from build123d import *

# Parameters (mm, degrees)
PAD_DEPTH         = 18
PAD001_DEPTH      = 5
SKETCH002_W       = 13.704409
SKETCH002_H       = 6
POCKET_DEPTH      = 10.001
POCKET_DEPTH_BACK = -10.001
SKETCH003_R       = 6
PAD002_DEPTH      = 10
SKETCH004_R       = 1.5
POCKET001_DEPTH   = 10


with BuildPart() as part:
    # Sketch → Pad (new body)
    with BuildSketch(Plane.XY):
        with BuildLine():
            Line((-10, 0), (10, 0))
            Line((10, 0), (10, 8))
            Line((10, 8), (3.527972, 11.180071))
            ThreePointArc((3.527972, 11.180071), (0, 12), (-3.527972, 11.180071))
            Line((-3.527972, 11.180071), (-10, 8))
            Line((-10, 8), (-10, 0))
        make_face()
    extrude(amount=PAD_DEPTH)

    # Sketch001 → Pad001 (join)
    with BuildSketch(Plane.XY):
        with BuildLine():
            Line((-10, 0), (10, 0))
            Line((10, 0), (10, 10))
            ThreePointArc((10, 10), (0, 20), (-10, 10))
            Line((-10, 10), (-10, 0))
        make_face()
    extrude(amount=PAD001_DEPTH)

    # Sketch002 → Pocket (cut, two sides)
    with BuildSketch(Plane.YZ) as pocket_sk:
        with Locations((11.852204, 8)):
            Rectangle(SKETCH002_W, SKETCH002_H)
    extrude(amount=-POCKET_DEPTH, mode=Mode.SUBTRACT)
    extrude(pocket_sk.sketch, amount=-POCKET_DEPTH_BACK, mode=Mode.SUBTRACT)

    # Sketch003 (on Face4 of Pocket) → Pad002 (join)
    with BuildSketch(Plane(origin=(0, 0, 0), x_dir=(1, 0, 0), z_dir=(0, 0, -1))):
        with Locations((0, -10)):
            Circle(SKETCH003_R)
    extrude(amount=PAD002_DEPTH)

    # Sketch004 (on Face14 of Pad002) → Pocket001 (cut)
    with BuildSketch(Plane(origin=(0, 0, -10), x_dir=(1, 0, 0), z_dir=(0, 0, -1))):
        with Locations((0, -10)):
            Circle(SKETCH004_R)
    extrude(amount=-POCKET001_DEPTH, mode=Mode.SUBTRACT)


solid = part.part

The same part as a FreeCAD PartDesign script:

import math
import FreeCAD as App
import Part
import Sketcher
from FreeCAD import Vector


def add_polygon(sketch, points):
    """Adds a closed chain of lines whose ends are joined by coincident constraints."""
    first, n = sketch.GeometryCount, len(points)
    for a, b in zip(points, points[1:] + points[:1]):
        sketch.addGeometry(Part.LineSegment(App.Vector(*a, 0), App.Vector(*b, 0)), False)
    for i in range(n):
        sketch.addConstraint(Sketcher.Constraint("Coincident", first + i, 2, first + (i + 1) % n, 1))

doc = App.newDocument("Part")
body = doc.addObject("PartDesign::Body", "Body")

# Sketch on XY plane
sketch1 = doc.addObject("Sketcher::SketchObject", "Sketch")
body.addObject(sketch1)
sketch1.AttachmentSupport = (doc.XY_Plane, [""])
sketch1.MapMode = "FlatFace"
sketch1.addGeometry(Part.LineSegment(Vector(-10, 0, 0), Vector(10, 0, 0)), False)
sketch1.addGeometry(Part.LineSegment(Vector(10, 0, 0), Vector(10, 8, 0)), False)
sketch1.addGeometry(Part.LineSegment(Vector(10, 8, 0), Vector(3.527972, 11.180071, 0)), False)
sketch1.addGeometry(Part.ArcOfCircle(Part.Circle(Vector(0, 3.999996, 0), Vector(0, 0, 1), 8.000004), math.radians(63.832534), math.radians(116.167466)), False)
sketch1.addGeometry(Part.LineSegment(Vector(-3.527972, 11.180071, 0), Vector(-10, 8, 0)), False)
sketch1.addGeometry(Part.LineSegment(Vector(-10, 8, 0), Vector(-10, 0, 0)), False)
sketch1.addConstraint(Sketcher.Constraint("Coincident", 0, 2, 1, 1))
sketch1.addConstraint(Sketcher.Constraint("Coincident", 1, 2, 2, 1))
sketch1.addConstraint(Sketcher.Constraint("Tangent", 2, 2, 3, 1))
sketch1.addConstraint(Sketcher.Constraint("Tangent", 3, 2, 4, 1))
sketch1.addConstraint(Sketcher.Constraint("Coincident", 4, 2, 5, 1))
sketch1.addConstraint(Sketcher.Constraint("Coincident", 5, 2, 0, 1))
sketch1.addConstraint(Sketcher.Constraint("Horizontal", 0))
sketch1.addConstraint(Sketcher.Constraint("Vertical", 1))
sketch1.addConstraint(Sketcher.Constraint("Vertical", 5))
sketch1.addConstraint(Sketcher.Constraint("Symmetric", 0, 2, 5, 2, -1, 1))
sketch1.addConstraint(Sketcher.Constraint("Symmetric", 2, 2, 3, 2, -2))
sketch1.addConstraint(Sketcher.Constraint("DistanceX", 0, 1, 0, 2, 20.0))
sketch1.addConstraint(Sketcher.Constraint("DistanceY", 1, 1, 1, 2, 8.0))
sketch1.addConstraint(Sketcher.Constraint("Radius", 3, 8.000004))
sketch1.addConstraint(Sketcher.Constraint("DistanceY", -1, 1, 2, 2, 11.180071))
pad1 = doc.addObject("PartDesign::Pad", "Pad")
body.addObject(pad1)
pad1.Profile = sketch1
pad1.Length = 18

# Sketch on XY plane
sketch2 = doc.addObject("Sketcher::SketchObject", "Sketch001")
body.addObject(sketch2)
sketch2.AttachmentSupport = (doc.XY_Plane, [""])
sketch2.MapMode = "FlatFace"
sketch2.addGeometry(Part.LineSegment(Vector(-10, 0, 0), Vector(10, 0, 0)), False)
sketch2.addGeometry(Part.LineSegment(Vector(10, 0, 0), Vector(10, 10, 0)), False)
sketch2.addGeometry(Part.ArcOfCircle(Part.Circle(Vector(0, 10, 0), Vector(0, 0, 1), 10), math.radians(0), math.radians(180)), False)
sketch2.addGeometry(Part.LineSegment(Vector(-10, 10, 0), Vector(-10, 0, 0)), False)
sketch2.addConstraint(Sketcher.Constraint("Coincident", 0, 2, 1, 1))
sketch2.addConstraint(Sketcher.Constraint("Tangent", 1, 2, 2, 1))
sketch2.addConstraint(Sketcher.Constraint("Tangent", 2, 2, 3, 1))
sketch2.addConstraint(Sketcher.Constraint("Coincident", 3, 2, 0, 1))
sketch2.addConstraint(Sketcher.Constraint("Horizontal", 0))
sketch2.addConstraint(Sketcher.Constraint("Vertical", 1))
sketch2.addConstraint(Sketcher.Constraint("Vertical", 3))
sketch2.addConstraint(Sketcher.Constraint("Symmetric", 0, 2, 3, 2, -1, 1))
sketch2.addConstraint(Sketcher.Constraint("Radius", 2, 10.0))
sketch2.addConstraint(Sketcher.Constraint("DistanceY", 1, 1, 1, 2, 10.0))
pad2 = doc.addObject("PartDesign::Pad", "Pad001")
body.addObject(pad2)
pad2.Profile = sketch2
pad2.Length = 5

# Sketch on YZ plane
sketch3 = doc.addObject("Sketcher::SketchObject", "Sketch002")
body.addObject(sketch3)
sketch3.AttachmentSupport = (doc.YZ_Plane, [""])
sketch3.MapMode = "FlatFace"
add_polygon(sketch3, [(5, 11), (5, 5), (18.704408, 5), (18.704408, 11)])  # lines 0-3
sketch3.addConstraint(Sketcher.Constraint("Vertical", 0))
sketch3.addConstraint(Sketcher.Constraint("Horizontal", 1))
sketch3.addConstraint(Sketcher.Constraint("Vertical", 2))
sketch3.addConstraint(Sketcher.Constraint("Horizontal", 3))
sketch3.addConstraint(Sketcher.Constraint("DistanceY", 0, 2, 0, 1, 6.0))
sketch3.addConstraint(Sketcher.Constraint("DistanceX", -1, 1, 0, 2, 5.0))
sketch3.addConstraint(Sketcher.Constraint("DistanceY", -1, 1, 0, 2, 5.0))
sketch3.addConstraint(Sketcher.Constraint("DistanceX", 1, 1, 1, 2, 13.704409))
pocket1 = doc.addObject("PartDesign::Pocket", "Pocket")
body.addObject(pocket1)
pocket1.Profile = sketch3
pocket1.Type = "ThroughAll"
pocket1.Midplane = True

# Sketch on XY plane
sketch4 = doc.addObject("Sketcher::SketchObject", "Sketch003")
body.addObject(sketch4)
sketch4.AttachmentSupport = (doc.XY_Plane, [""])
sketch4.MapMode = "FlatFace"
sketch4.addGeometry(Part.Circle(Vector(0, 10, 0), Vector(0, 0, 1), 6), False)
sketch4.addConstraint(Sketcher.Constraint("PointOnObject", 0, 3, -2))
sketch4.addConstraint(Sketcher.Constraint("Diameter", 0, 12.0))
sketch4.addConstraint(Sketcher.Constraint("DistanceY", -1, 1, 0, 3, 10.0))
pad3 = doc.addObject("PartDesign::Pad", "Pad002")
body.addObject(pad3)
pad3.Profile = sketch4
pad3.Length = 10
pad3.Reversed = True

# Sketch on XY plane
sketch5 = doc.addObject("Sketcher::SketchObject", "Sketch004")
body.addObject(sketch5)
sketch5.AttachmentSupport = (doc.XY_Plane, [""])
sketch5.MapMode = "FlatFace"
sketch5.AttachmentOffset = App.Placement(Vector(0, 0, -10), App.Rotation())
sketch5.addGeometry(Part.Circle(Vector(0, 10, 0), Vector(0, 0, 1), 1.5), False)
sketch5.addConstraint(Sketcher.Constraint("PointOnObject", 0, 3, -2))
sketch5.addConstraint(Sketcher.Constraint("Diameter", 0, 3.0))
sketch5.addConstraint(Sketcher.Constraint("DistanceY", -1, 1, 0, 3, 10.0))
pocket2 = doc.addObject("PartDesign::Pocket", "Pocket001")
body.addObject(pocket2)
pocket2.Profile = sketch5
pocket2.Length = 10
pocket2.Reversed = True

doc.recompute()
